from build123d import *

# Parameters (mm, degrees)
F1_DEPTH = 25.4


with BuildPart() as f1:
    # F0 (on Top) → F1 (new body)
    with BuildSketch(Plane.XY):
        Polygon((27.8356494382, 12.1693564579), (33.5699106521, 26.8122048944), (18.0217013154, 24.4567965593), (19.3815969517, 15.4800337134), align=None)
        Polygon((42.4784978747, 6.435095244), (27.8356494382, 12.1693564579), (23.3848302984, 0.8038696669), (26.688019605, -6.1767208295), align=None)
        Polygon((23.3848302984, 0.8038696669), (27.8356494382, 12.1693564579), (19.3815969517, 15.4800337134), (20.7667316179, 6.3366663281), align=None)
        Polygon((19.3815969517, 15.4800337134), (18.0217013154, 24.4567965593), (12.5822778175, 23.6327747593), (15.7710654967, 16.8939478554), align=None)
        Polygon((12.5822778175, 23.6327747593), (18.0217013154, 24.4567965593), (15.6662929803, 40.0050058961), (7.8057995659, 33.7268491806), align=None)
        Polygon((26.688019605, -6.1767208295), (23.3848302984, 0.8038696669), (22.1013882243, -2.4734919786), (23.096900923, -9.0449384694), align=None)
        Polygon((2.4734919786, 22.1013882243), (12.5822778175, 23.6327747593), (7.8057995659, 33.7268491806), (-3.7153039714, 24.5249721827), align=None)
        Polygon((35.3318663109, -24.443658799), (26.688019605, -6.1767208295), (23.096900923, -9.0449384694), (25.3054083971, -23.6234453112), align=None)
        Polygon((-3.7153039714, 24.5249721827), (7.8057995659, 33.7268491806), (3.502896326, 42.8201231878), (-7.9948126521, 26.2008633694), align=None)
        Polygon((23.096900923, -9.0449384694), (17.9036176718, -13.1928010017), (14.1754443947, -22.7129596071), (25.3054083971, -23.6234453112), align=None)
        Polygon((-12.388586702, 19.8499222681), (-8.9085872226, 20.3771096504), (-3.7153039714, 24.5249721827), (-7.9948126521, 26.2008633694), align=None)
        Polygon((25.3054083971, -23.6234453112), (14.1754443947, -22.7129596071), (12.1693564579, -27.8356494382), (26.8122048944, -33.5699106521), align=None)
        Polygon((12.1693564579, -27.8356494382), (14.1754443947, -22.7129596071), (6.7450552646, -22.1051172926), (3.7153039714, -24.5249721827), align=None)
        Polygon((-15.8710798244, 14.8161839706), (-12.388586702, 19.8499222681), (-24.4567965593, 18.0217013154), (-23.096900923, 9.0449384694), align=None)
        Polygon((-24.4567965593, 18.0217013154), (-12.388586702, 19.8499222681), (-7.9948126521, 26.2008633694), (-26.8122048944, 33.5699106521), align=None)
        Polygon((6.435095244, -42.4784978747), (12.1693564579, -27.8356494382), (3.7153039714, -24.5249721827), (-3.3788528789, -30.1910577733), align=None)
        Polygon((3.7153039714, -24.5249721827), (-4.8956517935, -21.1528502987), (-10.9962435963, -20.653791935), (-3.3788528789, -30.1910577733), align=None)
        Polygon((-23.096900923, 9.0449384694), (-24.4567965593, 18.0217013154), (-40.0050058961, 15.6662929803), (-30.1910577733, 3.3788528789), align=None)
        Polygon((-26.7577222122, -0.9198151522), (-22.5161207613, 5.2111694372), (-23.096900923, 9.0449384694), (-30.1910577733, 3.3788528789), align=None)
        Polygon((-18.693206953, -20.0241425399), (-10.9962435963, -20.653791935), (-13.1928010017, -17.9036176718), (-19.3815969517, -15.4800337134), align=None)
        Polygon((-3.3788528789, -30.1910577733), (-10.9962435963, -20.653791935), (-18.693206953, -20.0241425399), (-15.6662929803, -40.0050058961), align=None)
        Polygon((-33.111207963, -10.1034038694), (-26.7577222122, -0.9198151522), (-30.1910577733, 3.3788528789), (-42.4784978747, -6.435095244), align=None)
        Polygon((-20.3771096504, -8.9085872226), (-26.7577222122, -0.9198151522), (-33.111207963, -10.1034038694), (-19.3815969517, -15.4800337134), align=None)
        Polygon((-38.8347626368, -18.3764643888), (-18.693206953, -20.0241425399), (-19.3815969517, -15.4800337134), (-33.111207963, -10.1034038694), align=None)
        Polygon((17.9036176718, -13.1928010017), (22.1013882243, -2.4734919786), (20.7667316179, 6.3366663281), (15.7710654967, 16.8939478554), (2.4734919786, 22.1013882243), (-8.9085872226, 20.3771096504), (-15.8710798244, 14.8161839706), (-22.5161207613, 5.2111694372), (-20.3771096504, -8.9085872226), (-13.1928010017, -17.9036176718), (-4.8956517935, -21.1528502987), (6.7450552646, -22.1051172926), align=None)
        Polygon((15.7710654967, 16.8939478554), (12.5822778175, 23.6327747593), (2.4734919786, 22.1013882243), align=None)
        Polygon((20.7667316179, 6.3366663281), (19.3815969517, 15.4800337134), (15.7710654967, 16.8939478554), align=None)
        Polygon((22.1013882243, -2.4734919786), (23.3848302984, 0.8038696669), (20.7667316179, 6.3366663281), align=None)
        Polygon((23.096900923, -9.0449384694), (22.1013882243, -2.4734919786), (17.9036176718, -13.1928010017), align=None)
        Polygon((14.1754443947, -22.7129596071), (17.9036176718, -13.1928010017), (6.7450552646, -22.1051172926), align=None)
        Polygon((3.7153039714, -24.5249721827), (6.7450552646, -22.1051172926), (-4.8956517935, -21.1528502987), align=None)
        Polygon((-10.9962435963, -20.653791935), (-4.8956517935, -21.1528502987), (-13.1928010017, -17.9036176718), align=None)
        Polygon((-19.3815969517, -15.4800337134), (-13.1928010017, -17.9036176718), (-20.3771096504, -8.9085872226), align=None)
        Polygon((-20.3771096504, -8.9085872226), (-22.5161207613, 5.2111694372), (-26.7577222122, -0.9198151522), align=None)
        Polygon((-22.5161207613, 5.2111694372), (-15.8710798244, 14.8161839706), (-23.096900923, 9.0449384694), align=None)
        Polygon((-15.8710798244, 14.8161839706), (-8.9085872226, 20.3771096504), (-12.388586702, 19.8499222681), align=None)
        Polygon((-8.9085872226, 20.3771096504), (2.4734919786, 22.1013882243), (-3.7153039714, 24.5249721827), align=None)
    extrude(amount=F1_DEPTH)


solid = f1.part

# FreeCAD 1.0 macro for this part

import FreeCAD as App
import Part
import Sketcher

doc = App.newDocument("Part")
params = doc.addObject("Spreadsheet::Sheet", "Params")
for row, (alias, value) in enumerate([
    ("pad1_length", "1 in"),
], start=1):
    params.set(f"A{row}", alias)
    params.set(f"B{row}", "=" + value)
    params.setAlias(f"B{row}", alias)

body = doc.addObject("PartDesign::Body", "Body")

sketch1 = body.newObject("Sketcher::SketchObject", "Sketch")
sketch1.AttachmentSupport = (doc.getObject("XY_Plane"), [""])
sketch1.MapMode = "FlatFace"
sketch1.addGeometry(Part.LineSegment(App.Vector(-42.478498, -6.435095, 0), App.Vector(-33.111208, -10.103404, 0)), False)
sketch1.addGeometry(Part.LineSegment(App.Vector(-33.111208, -10.103404, 0), App.Vector(-38.834763, -18.376464, 0)), False)
sketch1.addGeometry(Part.LineSegment(App.Vector(-38.834763, -18.376464, 0), App.Vector(-18.693207, -20.024143, 0)), False)
sketch1.addGeometry(Part.LineSegment(App.Vector(-18.693207, -20.024143, 0), App.Vector(-15.666293, -40.005006, 0)), False)
sketch1.addGeometry(Part.LineSegment(App.Vector(-15.666293, -40.005006, 0), App.Vector(-3.378853, -30.191058, 0)), False)
sketch1.addGeometry(Part.LineSegment(App.Vector(-3.378853, -30.191058, 0), App.Vector(6.435095, -42.478498, 0)), False)
sketch1.addGeometry(Part.LineSegment(App.Vector(6.435095, -42.478498, 0), App.Vector(12.169356, -27.835649, 0)), False)
sketch1.addGeometry(Part.LineSegment(App.Vector(12.169356, -27.835649, 0), App.Vector(26.812205, -33.569911, 0)), False)
sketch1.addGeometry(Part.LineSegment(App.Vector(26.812205, -33.569911, 0), App.Vector(25.305408, -23.623445, 0)), False)
sketch1.addGeometry(Part.LineSegment(App.Vector(25.305408, -23.623445, 0), App.Vector(35.331866, -24.443659, 0)), False)
sketch1.addGeometry(Part.LineSegment(App.Vector(35.331866, -24.443659, 0), App.Vector(26.68802, -6.176721, 0)), False)
sketch1.addGeometry(Part.LineSegment(App.Vector(26.68802, -6.176721, 0), App.Vector(42.478498, 6.435095, 0)), False)
sketch1.addGeometry(Part.LineSegment(App.Vector(42.478498, 6.435095, 0), App.Vector(27.835649, 12.169356, 0)), False)
sketch1.addGeometry(Part.LineSegment(App.Vector(27.835649, 12.169356, 0), App.Vector(33.569911, 26.812205, 0)), False)
sketch1.addGeometry(Part.LineSegment(App.Vector(33.569911, 26.812205, 0), App.Vector(18.021701, 24.456797, 0)), False)
sketch1.addGeometry(Part.LineSegment(App.Vector(18.021701, 24.456797, 0), App.Vector(15.666293, 40.005006, 0)), False)
sketch1.addGeometry(Part.LineSegment(App.Vector(15.666293, 40.005006, 0), App.Vector(7.8058, 33.726849, 0)), False)
sketch1.addGeometry(Part.LineSegment(App.Vector(7.8058, 33.726849, 0), App.Vector(3.502896, 42.820123, 0)), False)
sketch1.addGeometry(Part.LineSegment(App.Vector(3.502896, 42.820123, 0), App.Vector(-7.994813, 26.200863, 0)), False)
sketch1.addGeometry(Part.LineSegment(App.Vector(-7.994813, 26.200863, 0), App.Vector(-26.812205, 33.569911, 0)), False)
sketch1.addGeometry(Part.LineSegment(App.Vector(-26.812205, 33.569911, 0), App.Vector(-24.456797, 18.021701, 0)), False)
sketch1.addGeometry(Part.LineSegment(App.Vector(-24.456797, 18.021701, 0), App.Vector(-40.005006, 15.666293, 0)), False)
sketch1.addGeometry(Part.LineSegment(App.Vector(-40.005006, 15.666293, 0), App.Vector(-30.191058, 3.378853, 0)), False)
sketch1.addGeometry(Part.LineSegment(App.Vector(-30.191058, 3.378853, 0), App.Vector(-42.478498, -6.435095, 0)), False)
sketch1.addConstraint(Sketcher.Constraint("Coincident", 0, 2, 1, 1))
sketch1.addConstraint(Sketcher.Constraint("Coincident", 1, 2, 2, 1))
sketch1.addConstraint(Sketcher.Constraint("Coincident", 2, 2, 3, 1))
sketch1.addConstraint(Sketcher.Constraint("Coincident", 3, 2, 4, 1))
sketch1.addConstraint(Sketcher.Constraint("Coincident", 4, 2, 5, 1))
sketch1.addConstraint(Sketcher.Constraint("Coincident", 5, 2, 6, 1))
sketch1.addConstraint(Sketcher.Constraint("Coincident", 6, 2, 7, 1))
sketch1.addConstraint(Sketcher.Constraint("Coincident", 7, 2, 8, 1))
sketch1.addConstraint(Sketcher.Constraint("Coincident", 8, 2, 9, 1))
sketch1.addConstraint(Sketcher.Constraint("Coincident", 9, 2, 10, 1))
sketch1.addConstraint(Sketcher.Constraint("Coincident", 10, 2, 11, 1))
sketch1.addConstraint(Sketcher.Constraint("Coincident", 11, 2, 12, 1))
sketch1.addConstraint(Sketcher.Constraint("Coincident", 12, 2, 13, 1))
sketch1.addConstraint(Sketcher.Constraint("Coincident", 13, 2, 14, 1))
sketch1.addConstraint(Sketcher.Constraint("Coincident", 14, 2, 15, 1))
sketch1.addConstraint(Sketcher.Constraint("Coincident", 15, 2, 16, 1))
sketch1.addConstraint(Sketcher.Constraint("Coincident", 16, 2, 17, 1))
sketch1.addConstraint(Sketcher.Constraint("Coincident", 17, 2, 18, 1))
sketch1.addConstraint(Sketcher.Constraint("Coincident", 18, 2, 19, 1))
sketch1.addConstraint(Sketcher.Constraint("Coincident", 19, 2, 20, 1))
sketch1.addConstraint(Sketcher.Constraint("Coincident", 20, 2, 21, 1))
sketch1.addConstraint(Sketcher.Constraint("Coincident", 21, 2, 22, 1))
sketch1.addConstraint(Sketcher.Constraint("Coincident", 22, 2, 23, 1))
sketch1.addConstraint(Sketcher.Constraint("Coincident", 23, 2, 0, 1))
sketch1.addConstraint(Sketcher.Constraint("Symmetric", 3, 2, 15, 2, -1, 1))
sketch1.addConstraint(Sketcher.Constraint("Symmetric", 7, 2, 19, 2, -1, 1))
sketch1.addConstraint(Sketcher.Constraint("Symmetric", 11, 2, 23, 2, -1, 1))
sketch1.addConstraint(Sketcher.Constraint("Perpendicular", 4, 5))
sketch1.addConstraint(Sketcher.Constraint("Perpendicular", 0, 6))
sketch1.addConstraint(Sketcher.Constraint("Perpendicular", 6, 7))
sketch1.addConstraint(Sketcher.Constraint("Parallel", 3, 8))
sketch1.addConstraint(Sketcher.Constraint("Parallel", 2, 9))
sketch1.addConstraint(Sketcher.Constraint("Perpendicular", 5, 11))
sketch1.addConstraint(Sketcher.Constraint("Parallel", 7, 12))
sketch1.addConstraint(Sketcher.Constraint("Perpendicular", 12, 13))
sketch1.addConstraint(Sketcher.Constraint("Perpendicular", 8, 14))
sketch1.addConstraint(Sketcher.Constraint("Perpendicular", 14, 15))
sketch1.addConstraint(Sketcher.Constraint("Parallel", 11, 16))
sketch1.addConstraint(Sketcher.Constraint("Parallel", 10, 17))
sketch1.addConstraint(Sketcher.Constraint("Parallel", 1, 18))
sketch1.addConstraint(Sketcher.Constraint("Perpendicular", 13, 19))
sketch1.addConstraint(Sketcher.Constraint("Parallel", 15, 20))
sketch1.addConstraint(Sketcher.Constraint("Perpendicular", 20, 21))
sketch1.addConstraint(Sketcher.Constraint("Perpendicular", 16, 22))
sketch1.addConstraint(Sketcher.Constraint("Perpendicular", 22, 23))
sketch1.addConstraint(Sketcher.Constraint("Equal", 0, 1))
sketch1.addConstraint(Sketcher.Constraint("Equal", 2, 3))
sketch1.addConstraint(Sketcher.Constraint("Equal", 4, 5))
sketch1.addConstraint(Sketcher.Constraint("Equal", 5, 6))
sketch1.addConstraint(Sketcher.Constraint("Equal", 6, 7))
sketch1.addConstraint(Sketcher.Constraint("Equal", 1, 8))
sketch1.addConstraint(Sketcher.Constraint("Equal", 8, 9))
sketch1.addConstraint(Sketcher.Constraint("Equal", 3, 10))
sketch1.addConstraint(Sketcher.Constraint("Equal", 10, 11))
sketch1.addConstraint(Sketcher.Constraint("Equal", 7, 12))
sketch1.addConstraint(Sketcher.Constraint("Equal", 12, 13))
sketch1.addConstraint(Sketcher.Constraint("Equal", 13, 14))
sketch1.addConstraint(Sketcher.Constraint("Equal", 14, 15))
sketch1.addConstraint(Sketcher.Constraint("Equal", 9, 16))
sketch1.addConstraint(Sketcher.Constraint("Equal", 16, 17))
sketch1.addConstraint(Sketcher.Constraint("Equal", 11, 18))
sketch1.addConstraint(Sketcher.Constraint("Equal", 18, 19))
sketch1.addConstraint(Sketcher.Constraint("Equal", 15, 20))
sketch1.addConstraint(Sketcher.Constraint("Equal", 20, 21))
sketch1.addConstraint(Sketcher.Constraint("Equal", 21, 22))
sketch1.addConstraint(Sketcher.Constraint("Equal", 22, 23))
sketch1.addConstraint(Sketcher.Constraint("DistanceX", -1, 1, 14, 2, 18.021701))
sketch1.addConstraint(Sketcher.Constraint("DistanceX", -1, 1, 16, 2, 7.8058))
sketch1.addConstraint(Sketcher.Constraint("DistanceX", 0, 2, 2, 2, 14.418001))
pad1 = body.newObject("PartDesign::Pad", "Pad")
pad1.Profile = sketch1
pad1.setExpression("Length", "Params.pad1_length")

doc.recompute()
